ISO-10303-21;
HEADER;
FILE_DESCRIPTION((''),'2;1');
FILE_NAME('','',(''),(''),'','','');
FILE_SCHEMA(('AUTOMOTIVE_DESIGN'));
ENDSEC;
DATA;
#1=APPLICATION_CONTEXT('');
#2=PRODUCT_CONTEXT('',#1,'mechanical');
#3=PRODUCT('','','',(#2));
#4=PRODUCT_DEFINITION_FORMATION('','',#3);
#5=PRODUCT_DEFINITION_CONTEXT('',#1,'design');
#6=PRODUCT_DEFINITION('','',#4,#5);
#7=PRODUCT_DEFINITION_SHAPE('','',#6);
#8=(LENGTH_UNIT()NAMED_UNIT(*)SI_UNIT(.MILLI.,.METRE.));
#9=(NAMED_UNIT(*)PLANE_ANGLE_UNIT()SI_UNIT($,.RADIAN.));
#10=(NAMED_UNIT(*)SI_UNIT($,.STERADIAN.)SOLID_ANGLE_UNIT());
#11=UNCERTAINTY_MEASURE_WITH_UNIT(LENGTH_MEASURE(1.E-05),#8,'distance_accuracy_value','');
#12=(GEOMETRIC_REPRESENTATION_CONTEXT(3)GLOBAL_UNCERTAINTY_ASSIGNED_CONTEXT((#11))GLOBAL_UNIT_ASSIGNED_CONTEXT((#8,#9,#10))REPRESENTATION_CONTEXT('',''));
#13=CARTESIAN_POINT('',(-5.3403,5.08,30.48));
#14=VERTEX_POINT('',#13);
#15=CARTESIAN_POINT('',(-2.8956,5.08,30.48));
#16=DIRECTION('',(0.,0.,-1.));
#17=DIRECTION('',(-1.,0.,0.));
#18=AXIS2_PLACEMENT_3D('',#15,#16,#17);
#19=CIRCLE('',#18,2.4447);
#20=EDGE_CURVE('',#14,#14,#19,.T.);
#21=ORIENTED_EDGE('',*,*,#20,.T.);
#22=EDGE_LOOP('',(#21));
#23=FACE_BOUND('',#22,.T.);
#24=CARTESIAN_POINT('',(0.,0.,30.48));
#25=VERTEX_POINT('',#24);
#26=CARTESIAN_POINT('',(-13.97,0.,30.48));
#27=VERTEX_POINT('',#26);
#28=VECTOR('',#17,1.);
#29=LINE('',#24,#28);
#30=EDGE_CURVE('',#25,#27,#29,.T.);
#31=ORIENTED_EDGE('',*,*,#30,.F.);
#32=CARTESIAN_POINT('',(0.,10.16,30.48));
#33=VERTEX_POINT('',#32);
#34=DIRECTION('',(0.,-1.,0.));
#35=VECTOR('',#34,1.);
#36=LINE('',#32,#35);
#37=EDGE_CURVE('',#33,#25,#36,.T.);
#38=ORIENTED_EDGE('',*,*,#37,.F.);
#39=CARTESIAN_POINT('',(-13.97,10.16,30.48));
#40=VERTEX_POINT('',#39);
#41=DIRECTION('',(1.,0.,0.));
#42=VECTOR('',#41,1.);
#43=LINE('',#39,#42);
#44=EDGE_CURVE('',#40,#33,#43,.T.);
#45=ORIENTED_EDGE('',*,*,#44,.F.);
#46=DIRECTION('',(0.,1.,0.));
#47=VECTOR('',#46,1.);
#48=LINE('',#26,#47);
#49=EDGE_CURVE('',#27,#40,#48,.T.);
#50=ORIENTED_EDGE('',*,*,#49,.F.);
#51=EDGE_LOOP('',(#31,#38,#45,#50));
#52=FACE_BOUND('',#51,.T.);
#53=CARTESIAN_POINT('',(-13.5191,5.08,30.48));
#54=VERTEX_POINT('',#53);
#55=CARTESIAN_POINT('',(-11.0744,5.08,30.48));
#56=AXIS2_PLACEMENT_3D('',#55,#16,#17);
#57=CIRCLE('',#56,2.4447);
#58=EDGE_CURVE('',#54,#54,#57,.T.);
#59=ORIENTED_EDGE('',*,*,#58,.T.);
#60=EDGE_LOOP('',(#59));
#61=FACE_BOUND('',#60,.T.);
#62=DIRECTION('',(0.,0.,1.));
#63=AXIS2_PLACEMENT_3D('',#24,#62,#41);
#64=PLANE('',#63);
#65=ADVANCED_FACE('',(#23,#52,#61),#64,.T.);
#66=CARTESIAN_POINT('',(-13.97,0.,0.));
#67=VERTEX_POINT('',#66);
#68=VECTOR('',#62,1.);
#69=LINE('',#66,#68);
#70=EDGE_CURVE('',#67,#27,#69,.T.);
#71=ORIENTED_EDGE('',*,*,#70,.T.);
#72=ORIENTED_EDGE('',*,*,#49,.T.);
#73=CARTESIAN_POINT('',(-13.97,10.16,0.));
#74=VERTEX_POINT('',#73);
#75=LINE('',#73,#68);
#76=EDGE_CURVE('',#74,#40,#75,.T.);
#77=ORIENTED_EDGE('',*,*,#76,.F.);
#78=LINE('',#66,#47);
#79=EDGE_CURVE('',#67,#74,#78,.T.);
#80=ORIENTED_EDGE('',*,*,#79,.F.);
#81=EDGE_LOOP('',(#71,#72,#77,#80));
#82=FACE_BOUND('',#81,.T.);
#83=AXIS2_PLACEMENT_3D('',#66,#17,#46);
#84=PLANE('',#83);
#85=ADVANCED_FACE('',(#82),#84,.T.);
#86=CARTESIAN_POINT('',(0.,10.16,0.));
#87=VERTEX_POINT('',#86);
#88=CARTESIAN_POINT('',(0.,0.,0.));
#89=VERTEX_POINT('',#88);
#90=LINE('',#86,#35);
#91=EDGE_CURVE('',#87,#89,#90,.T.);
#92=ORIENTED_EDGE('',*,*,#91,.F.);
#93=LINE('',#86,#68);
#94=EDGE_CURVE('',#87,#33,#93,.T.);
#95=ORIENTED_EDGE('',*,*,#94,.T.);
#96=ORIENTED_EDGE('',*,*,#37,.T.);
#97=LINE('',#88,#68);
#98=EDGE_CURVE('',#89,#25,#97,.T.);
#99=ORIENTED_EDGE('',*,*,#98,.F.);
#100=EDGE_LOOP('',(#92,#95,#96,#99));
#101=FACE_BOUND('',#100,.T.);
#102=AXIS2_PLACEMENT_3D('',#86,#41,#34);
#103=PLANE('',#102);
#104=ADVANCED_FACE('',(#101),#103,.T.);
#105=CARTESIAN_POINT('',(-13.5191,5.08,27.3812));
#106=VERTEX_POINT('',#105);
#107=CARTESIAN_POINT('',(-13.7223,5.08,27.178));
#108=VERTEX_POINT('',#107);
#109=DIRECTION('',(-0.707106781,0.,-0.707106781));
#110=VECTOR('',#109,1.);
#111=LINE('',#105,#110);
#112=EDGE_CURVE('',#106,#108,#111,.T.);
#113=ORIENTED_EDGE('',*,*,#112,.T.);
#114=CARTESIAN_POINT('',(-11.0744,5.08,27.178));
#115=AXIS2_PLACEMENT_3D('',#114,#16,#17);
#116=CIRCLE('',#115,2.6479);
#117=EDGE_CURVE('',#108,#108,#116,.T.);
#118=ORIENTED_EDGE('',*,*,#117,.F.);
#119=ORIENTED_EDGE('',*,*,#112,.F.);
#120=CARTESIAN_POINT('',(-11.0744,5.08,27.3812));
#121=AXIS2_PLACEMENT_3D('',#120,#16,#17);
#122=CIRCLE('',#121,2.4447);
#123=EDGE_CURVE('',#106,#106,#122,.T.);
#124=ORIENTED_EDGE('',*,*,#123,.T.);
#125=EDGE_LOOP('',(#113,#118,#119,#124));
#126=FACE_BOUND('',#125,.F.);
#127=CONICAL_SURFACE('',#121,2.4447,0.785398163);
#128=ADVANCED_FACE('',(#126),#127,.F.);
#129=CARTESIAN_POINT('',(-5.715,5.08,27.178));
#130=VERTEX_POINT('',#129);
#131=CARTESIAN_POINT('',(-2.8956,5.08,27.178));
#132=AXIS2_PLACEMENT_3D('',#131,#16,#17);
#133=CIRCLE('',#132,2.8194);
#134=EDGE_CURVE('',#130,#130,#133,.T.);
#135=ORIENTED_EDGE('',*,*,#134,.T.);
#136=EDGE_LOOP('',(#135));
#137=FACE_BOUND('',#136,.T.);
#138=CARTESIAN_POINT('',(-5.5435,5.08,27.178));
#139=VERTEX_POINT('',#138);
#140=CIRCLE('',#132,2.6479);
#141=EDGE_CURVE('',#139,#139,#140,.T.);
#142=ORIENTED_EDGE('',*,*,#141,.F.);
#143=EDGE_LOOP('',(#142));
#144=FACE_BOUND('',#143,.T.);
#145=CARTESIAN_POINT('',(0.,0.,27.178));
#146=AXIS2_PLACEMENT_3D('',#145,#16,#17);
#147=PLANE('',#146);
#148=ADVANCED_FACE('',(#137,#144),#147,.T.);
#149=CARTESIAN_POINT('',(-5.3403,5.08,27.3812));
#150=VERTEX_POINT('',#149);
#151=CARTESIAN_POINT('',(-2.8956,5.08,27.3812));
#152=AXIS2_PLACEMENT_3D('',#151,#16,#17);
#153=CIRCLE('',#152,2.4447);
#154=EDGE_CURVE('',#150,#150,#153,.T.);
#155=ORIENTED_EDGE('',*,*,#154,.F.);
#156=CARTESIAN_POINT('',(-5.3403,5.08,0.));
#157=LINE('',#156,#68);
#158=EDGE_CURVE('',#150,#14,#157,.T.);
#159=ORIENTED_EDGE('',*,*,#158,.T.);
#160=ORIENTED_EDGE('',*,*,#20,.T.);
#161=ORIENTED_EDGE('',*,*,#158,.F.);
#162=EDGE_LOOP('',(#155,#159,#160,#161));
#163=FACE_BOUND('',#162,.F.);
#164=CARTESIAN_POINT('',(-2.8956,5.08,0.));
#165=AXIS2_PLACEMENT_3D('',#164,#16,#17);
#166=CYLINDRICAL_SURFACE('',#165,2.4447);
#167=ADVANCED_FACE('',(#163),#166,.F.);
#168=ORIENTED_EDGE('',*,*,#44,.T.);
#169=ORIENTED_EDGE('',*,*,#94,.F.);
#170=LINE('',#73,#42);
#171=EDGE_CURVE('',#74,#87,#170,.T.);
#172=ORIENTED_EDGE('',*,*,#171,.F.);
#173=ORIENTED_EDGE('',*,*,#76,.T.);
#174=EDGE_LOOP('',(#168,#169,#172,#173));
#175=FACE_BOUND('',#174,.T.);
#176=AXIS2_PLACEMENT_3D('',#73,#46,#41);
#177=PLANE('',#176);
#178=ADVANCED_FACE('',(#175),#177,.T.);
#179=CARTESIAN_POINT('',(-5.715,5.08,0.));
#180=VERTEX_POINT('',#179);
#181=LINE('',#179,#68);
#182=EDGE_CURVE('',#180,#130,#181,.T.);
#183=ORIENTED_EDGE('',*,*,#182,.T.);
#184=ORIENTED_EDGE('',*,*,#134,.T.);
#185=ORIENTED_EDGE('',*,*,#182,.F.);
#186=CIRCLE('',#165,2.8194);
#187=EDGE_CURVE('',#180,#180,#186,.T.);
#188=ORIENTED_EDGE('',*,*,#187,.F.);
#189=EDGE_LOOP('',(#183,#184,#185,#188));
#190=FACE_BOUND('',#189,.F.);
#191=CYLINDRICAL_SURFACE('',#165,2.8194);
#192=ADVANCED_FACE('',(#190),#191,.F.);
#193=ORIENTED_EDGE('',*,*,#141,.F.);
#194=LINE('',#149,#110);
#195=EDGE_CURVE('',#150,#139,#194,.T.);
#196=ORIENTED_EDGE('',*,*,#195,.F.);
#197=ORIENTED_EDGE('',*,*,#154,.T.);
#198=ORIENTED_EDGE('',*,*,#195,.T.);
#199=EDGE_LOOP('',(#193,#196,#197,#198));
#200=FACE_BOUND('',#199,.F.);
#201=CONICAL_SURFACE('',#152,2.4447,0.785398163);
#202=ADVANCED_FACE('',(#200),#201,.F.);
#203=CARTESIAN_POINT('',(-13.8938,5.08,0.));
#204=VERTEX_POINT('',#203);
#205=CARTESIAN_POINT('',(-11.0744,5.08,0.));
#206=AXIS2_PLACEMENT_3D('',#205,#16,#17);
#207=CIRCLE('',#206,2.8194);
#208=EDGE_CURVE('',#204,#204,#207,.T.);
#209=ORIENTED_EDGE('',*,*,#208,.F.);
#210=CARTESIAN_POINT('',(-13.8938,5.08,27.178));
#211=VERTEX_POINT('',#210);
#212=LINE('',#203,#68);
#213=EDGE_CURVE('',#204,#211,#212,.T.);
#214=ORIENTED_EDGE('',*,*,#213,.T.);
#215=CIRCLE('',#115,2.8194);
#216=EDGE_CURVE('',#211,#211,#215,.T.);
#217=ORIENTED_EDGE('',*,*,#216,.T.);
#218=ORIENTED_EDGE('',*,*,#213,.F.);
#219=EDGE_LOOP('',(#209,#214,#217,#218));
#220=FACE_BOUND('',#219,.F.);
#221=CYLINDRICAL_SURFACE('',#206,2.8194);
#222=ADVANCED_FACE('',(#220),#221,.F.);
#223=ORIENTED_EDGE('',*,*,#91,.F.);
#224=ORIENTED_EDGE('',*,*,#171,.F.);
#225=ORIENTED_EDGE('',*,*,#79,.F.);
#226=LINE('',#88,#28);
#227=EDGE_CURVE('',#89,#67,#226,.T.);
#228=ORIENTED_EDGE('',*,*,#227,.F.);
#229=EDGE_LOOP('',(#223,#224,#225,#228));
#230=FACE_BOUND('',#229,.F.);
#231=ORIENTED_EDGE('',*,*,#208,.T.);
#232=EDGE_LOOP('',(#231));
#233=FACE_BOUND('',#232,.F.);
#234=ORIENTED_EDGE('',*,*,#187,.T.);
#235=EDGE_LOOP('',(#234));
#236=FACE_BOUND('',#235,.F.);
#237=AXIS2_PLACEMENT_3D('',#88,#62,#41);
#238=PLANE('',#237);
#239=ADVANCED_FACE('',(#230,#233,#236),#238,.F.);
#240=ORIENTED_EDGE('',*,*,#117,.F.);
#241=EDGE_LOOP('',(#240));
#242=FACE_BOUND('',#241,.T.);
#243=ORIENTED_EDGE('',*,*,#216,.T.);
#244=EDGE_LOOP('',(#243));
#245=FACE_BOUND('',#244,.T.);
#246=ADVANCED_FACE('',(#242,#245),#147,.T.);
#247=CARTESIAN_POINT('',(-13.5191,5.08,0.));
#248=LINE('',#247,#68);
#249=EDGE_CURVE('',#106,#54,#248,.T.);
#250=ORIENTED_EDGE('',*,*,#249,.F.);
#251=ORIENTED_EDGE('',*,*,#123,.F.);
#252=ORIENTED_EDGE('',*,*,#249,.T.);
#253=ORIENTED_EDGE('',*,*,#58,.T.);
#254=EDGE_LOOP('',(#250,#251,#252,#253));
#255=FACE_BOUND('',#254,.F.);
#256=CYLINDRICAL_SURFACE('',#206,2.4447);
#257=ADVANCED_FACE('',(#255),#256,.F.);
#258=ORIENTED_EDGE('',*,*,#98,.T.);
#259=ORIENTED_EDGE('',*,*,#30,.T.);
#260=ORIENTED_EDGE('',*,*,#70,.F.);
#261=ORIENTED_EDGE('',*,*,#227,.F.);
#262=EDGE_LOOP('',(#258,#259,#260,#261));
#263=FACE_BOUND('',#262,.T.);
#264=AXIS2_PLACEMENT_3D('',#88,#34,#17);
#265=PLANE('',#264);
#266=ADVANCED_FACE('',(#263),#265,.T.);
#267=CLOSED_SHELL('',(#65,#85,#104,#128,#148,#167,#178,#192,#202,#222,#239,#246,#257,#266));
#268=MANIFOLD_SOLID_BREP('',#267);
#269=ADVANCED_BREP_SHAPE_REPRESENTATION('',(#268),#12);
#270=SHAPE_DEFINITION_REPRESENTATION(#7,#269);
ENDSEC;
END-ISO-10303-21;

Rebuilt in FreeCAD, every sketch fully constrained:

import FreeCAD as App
import Part
import Sketcher
from FreeCAD import Vector
Q = App.Units.Quantity


def edges_at(feature, points):
    """Names of the edges that pass closest to the given points."""
    edges = feature.Shape.Edges
    near = lambda p: min(range(len(edges)), key=lambda i: edges[i].distToShape(Part.Vertex(*p))[0])
    return sorted({f"Edge{near(p) + 1}" for p in points})


def add_polygon(sketch, points):
    """Adds a closed chain of lines whose ends are joined by coincident constraints."""
    first, n = sketch.GeometryCount, len(points)
    for a, b in zip(points, points[1:] + points[:1]):
        sketch.addGeometry(Part.LineSegment(App.Vector(*a, 0), App.Vector(*b, 0)), False)
    for i in range(n):
        sketch.addConstraint(Sketcher.Constraint("Coincident", first + i, 2, first + (i + 1) % n, 1))

doc = App.newDocument("Part")
params = doc.addObject("Spreadsheet::Sheet", "Params")
for row, (alias, value) in enumerate([
    ("sketch1_height", "0.4 in"),
    ("sketch1_width", "0.55 in"),
    ("pad1_length", "1.2 in"),
    ("sketch2_diameter", "0.222 in"),
    ("pocket1_length", "1.07 in"),
    ("pocket2_length", "1.3 in"),
    ("chamfer_size", "0.008 in"),
], start=1):
    params.set(f"A{row}", alias)
    params.set(f"B{row}", "=" + value)
    params.setAlias(f"B{row}", alias)

body = doc.addObject("PartDesign::Body", "Body")

sketch1 = body.newObject("Sketcher::SketchObject", "Sketch")
sketch1.AttachmentSupport = (doc.getObject("XY_Plane"), [""])
sketch1.MapMode = "FlatFace"
add_polygon(sketch1, [(0, 10.16), (-13.97, 10.16), (-13.97, 0), (0, 0)])
sketch1.addConstraint([
    Sketcher.Constraint("Horizontal", 0),
    Sketcher.Constraint("Vertical", 1),
    Sketcher.Constraint("Horizontal", 2),
    Sketcher.Constraint("Vertical", 3),
    Sketcher.Constraint("Coincident", 2, 2, -1, 1),
    Sketcher.Constraint("DistanceY", 1, 2, 1, 1, Q("0.4 in")),
    Sketcher.Constraint("DistanceX", 0, 2, 0, 1, Q("0.55 in")),
])
sketch1.setExpression("Constraints[9]", "Params.sketch1_height")
sketch1.setExpression("Constraints[10]", "Params.sketch1_width")
pad1 = body.newObject("PartDesign::Pad", "Pad")
pad1.Profile = sketch1
pad1.setExpression("Length", "Params.pad1_length")

sketch2 = body.newObject("Sketcher::SketchObject", "Sketch001")
sketch2.AttachmentSupport = (doc.getObject("XY_Plane"), [""])
sketch2.MapMode = "FlatFace"
sketch2.addGeometry([
    Part.Circle(Vector(-2.8956, 5.08, 0), Vector(0, 0, 1), 2.8194),
    Part.Circle(Vector(-11.0744, 5.08, 0), Vector(0, 0, 1), 2.8194),
], False)
sketch2.addConstraint([
    Sketcher.Constraint("Equal", 0, 1),
    Sketcher.Constraint("Horizontal", 0, 3, 1, 3),
    Sketcher.Constraint("Diameter", 0, Q("0.222 in")),
    Sketcher.Constraint("DistanceY", -1, 1, 0, 3, Q("0.2 in")),
    Sketcher.Constraint("DistanceX", 0, 3, -1, 1, Q("0.114 in")),
    Sketcher.Constraint("DistanceX", 1, 3, -1, 1, Q("0.436 in")),
])
sketch2.setExpression("Constraints[2]", "Params.sketch2_diameter")
pocket1 = body.newObject("PartDesign::Pocket", "Pocket")
pocket1.Profile = sketch2
pocket1.setExpression("Length", "Params.pocket1_length")
pocket1.Reversed = True

sketch3 = body.newObject("Sketcher::SketchObject", "Sketch002")
sketch3.AttachmentSupport = (doc.getObject("XY_Plane"), [""])
sketch3.MapMode = "FlatFace"
sketch3.addGeometry([
    Part.Circle(Vector(-2.8956, 5.08, 0), Vector(0, 0, 1), 2.4447),
    Part.Circle(Vector(-11.0744, 5.08, 0), Vector(0, 0, 1), 2.4447),
], False)
sketch3.addConstraint([
    Sketcher.Constraint("Equal", 0, 1),
    Sketcher.Constraint("Horizontal", 0, 3, 1, 3),
    Sketcher.Constraint("Diameter", 0, Q("0.1925 in")),
    Sketcher.Constraint("DistanceY", -1, 1, 0, 3, Q("0.2 in")),
    Sketcher.Constraint("DistanceX", 0, 3, -1, 1, Q("0.114 in")),
    Sketcher.Constraint("DistanceX", 1, 3, -1, 1, Q("0.436 in")),
])
pocket2 = body.newObject("PartDesign::Pocket", "Pocket001")
pocket2.Profile = sketch3
pocket2.setExpression("Length", "Params.pocket2_length")
pocket2.Reversed = True
doc.recompute()

chamfer = body.newObject("PartDesign::Chamfer", "Chamfer")
chamfer.Base = (pocket2, edges_at(pocket2, [(-0.451, 5.08, 27.178), (-8.63, 5.08, 27.178)]))
chamfer.setExpression("Size", "Params.chamfer_size")

doc.recompute()
